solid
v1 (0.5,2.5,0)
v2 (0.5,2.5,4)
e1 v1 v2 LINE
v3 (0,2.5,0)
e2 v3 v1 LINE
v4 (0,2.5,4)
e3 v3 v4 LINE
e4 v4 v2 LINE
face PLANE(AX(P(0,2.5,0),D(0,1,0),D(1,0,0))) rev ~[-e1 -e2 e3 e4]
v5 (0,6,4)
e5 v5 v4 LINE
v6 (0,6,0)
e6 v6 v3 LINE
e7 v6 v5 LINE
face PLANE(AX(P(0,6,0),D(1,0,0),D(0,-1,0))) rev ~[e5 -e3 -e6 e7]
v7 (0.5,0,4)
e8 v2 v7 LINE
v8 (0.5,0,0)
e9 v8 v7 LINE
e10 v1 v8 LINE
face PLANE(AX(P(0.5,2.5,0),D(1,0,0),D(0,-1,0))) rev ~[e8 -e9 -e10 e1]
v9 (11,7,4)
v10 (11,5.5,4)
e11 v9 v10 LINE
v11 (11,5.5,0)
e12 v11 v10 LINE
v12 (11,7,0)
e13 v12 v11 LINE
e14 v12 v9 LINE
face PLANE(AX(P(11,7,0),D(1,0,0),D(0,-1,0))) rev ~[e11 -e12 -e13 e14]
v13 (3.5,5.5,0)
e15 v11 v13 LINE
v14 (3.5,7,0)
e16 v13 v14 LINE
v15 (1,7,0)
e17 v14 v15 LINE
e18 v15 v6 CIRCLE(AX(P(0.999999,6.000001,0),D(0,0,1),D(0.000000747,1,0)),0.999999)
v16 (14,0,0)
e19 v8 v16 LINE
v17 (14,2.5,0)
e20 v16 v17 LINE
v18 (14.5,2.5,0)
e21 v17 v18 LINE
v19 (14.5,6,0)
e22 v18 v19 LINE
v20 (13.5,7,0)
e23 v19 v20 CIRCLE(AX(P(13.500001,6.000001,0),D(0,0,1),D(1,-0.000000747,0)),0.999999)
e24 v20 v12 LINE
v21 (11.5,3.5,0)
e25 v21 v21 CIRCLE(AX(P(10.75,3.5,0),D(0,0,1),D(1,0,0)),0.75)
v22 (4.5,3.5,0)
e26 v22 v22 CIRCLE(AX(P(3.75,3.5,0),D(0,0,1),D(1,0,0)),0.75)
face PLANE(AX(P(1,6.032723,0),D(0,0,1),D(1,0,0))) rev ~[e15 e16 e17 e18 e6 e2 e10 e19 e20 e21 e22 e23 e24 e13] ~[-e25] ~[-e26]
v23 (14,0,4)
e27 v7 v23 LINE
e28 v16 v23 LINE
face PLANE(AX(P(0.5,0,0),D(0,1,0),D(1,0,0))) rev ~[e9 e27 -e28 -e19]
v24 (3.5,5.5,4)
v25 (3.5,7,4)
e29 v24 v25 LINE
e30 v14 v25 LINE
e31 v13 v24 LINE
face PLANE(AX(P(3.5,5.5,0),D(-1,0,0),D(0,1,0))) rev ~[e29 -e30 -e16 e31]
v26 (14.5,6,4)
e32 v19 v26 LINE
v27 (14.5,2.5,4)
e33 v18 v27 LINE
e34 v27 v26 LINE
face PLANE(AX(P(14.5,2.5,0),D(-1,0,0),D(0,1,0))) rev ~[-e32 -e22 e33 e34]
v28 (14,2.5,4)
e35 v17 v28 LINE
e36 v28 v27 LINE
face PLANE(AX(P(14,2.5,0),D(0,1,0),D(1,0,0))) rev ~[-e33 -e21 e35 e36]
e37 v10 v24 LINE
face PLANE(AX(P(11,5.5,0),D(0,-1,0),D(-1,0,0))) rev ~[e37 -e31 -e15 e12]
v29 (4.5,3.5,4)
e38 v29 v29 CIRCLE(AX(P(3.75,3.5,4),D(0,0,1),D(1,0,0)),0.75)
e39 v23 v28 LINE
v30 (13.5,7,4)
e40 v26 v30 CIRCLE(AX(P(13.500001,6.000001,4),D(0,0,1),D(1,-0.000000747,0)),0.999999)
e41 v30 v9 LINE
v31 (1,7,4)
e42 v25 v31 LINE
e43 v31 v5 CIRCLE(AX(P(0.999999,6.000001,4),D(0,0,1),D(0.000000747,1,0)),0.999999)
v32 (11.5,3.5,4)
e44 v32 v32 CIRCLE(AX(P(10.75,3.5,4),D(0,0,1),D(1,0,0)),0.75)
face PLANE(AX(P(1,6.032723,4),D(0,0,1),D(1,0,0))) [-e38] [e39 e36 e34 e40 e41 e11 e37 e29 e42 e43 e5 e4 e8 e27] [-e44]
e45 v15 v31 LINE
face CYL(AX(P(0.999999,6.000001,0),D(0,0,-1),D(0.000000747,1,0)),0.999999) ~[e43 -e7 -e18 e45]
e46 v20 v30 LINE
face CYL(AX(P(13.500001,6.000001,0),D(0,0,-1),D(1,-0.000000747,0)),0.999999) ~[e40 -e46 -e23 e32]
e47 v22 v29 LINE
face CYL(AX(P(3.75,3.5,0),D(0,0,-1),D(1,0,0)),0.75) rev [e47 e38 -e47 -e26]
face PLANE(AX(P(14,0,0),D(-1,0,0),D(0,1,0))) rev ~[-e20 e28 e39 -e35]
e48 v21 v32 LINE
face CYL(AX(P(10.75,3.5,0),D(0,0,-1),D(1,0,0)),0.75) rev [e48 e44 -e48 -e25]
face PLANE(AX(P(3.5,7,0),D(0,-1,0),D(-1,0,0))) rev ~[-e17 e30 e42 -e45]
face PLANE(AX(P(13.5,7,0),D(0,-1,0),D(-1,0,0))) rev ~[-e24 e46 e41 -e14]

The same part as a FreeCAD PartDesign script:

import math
import FreeCAD as App
import Part
import Sketcher

V = App.Vector

doc = App.newDocument("Part")
params = doc.addObject("Spreadsheet::Sheet", "Params")
for row, (alias, value) in enumerate([
    ("sketch1_radius", "0.999999 mm"),
    ("sketch1_diameter", "1.5 mm"),
    ("sketch1_width", "0.5 mm"),
    ("sketch1_width2", "13.5 mm"),
    ("sketch1_width3", "2.5 mm"),
    ("pad1_length", "4 mm"),
], start=1):
    params.set(f"A{row}", alias)
    params.set(f"B{row}", "=" + value)
    params.setAlias(f"B{row}", alias)

body = doc.addObject("PartDesign::Body", "Body")

sketch1 = body.newObject("Sketcher::SketchObject", "Sketch")
sketch1.AttachmentSupport = (doc.getObject("XY_Plane"), [""])
sketch1.MapMode = "FlatFace"
sketch1.addGeometry([
    Part.ArcOfCircle(Part.Circle(V(1, 6, 0), V(0, 0, 1), 1), math.radians(90), math.radians(180)),
    Part.LineSegment(V(0, 6, 0), V(0, 2.5, 0)),
    Part.LineSegment(V(0, 2.5, 0), V(0.5, 2.5, 0)),
    Part.LineSegment(V(0.5, 2.5, 0), V(0.5, 0, 0)),
    Part.LineSegment(V(0.5, 0, 0), V(14, 0, 0)),
    Part.LineSegment(V(14, 0, 0), V(14, 2.5, 0)),
    Part.LineSegment(V(14, 2.5, 0), V(14.5, 2.5, 0)),
    Part.LineSegment(V(14.5, 2.5, 0), V(14.5, 6, 0)),
    Part.ArcOfCircle(Part.Circle(V(13.5, 6, 0), V(0, 0, 1), 1), math.radians(0), math.radians(90)),
    Part.LineSegment(V(13.5, 7, 0), V(11, 7, 0)),
    Part.LineSegment(V(11, 7, 0), V(11, 5.5, 0)),
    Part.LineSegment(V(11, 5.5, 0), V(3.5, 5.5, 0)),
    Part.LineSegment(V(3.5, 5.5, 0), V(3.5, 7, 0)),
    Part.LineSegment(V(3.5, 7, 0), V(1, 7, 0)),
    Part.Circle(V(3.8, 3.5, 0), V(0, 0, 1), 0.8),
    Part.Circle(V(10.8, 3.5, 0), V(0, 0, 1), 0.8),
], False)
sketch1.addConstraint([
    Sketcher.Constraint("Tangent", 0, 2, 1, 1),
    Sketcher.Constraint("Coincident", 1, 2, 2, 1),
    Sketcher.Constraint("Coincident", 2, 2, 3, 1),
    Sketcher.Constraint("Coincident", 3, 2, 4, 1),
    Sketcher.Constraint("Coincident", 4, 2, 5, 1),
    Sketcher.Constraint("Coincident", 5, 2, 6, 1),
    Sketcher.Constraint("Coincident", 6, 2, 7, 1),
    Sketcher.Constraint("Tangent", 7, 2, 8, 1),
    Sketcher.Constraint("Tangent", 8, 2, 9, 1),
    Sketcher.Constraint("Coincident", 9, 2, 10, 1),
    Sketcher.Constraint("Coincident", 10, 2, 11, 1),
    Sketcher.Constraint("Coincident", 11, 2, 12, 1),
    Sketcher.Constraint("Coincident", 12, 2, 13, 1),
    Sketcher.Constraint("Tangent", 13, 2, 0, 1),
    Sketcher.Constraint("Vertical", 1),
    Sketcher.Constraint("Horizontal", 2),
    Sketcher.Constraint("Vertical", 3),
    Sketcher.Constraint("Horizontal", 4),
    Sketcher.Constraint("Vertical", 5),
    Sketcher.Constraint("Horizontal", 6),
    Sketcher.Constraint("Vertical", 7),
    Sketcher.Constraint("Horizontal", 9),
    Sketcher.Constraint("Vertical", 10),
    Sketcher.Constraint("Horizontal", 11),
    Sketcher.Constraint("Vertical", 12),
    Sketcher.Constraint("Horizontal", 13),
    Sketcher.Constraint("Equal", 0, 8),
    Sketcher.Constraint("Equal", 14, 15),
    Sketcher.Constraint("PointOnObject", 0, 2, -2),
    Sketcher.Constraint("PointOnObject", 3, 2, -1),
    Sketcher.Constraint("Horizontal", 0, 3, 8, 3),
    Sketcher.Constraint("Horizontal", 14, 3, 15, 3),
    Sketcher.Constraint("Horizontal", 2, 2, 5, 2),
    Sketcher.Constraint("Equal", 2, 6),
    Sketcher.Constraint("Equal", 9, 13),
    Sketcher.Constraint("Equal", 13, 3),
    Sketcher.Constraint("Radius", 0, 0.999999),
    Sketcher.Constraint("Diameter", 14, 1.5),
    Sketcher.Constraint("DistanceX", 2, 1, 2, 2, 0.5),
    Sketcher.Constraint("DistanceX", 4, 1, 4, 2, 13.5),
    Sketcher.Constraint("DistanceX", 9, 2, 9, 1, 2.5),
    Sketcher.Constraint("DistanceY", 1, 2, 1, 1, 3.5),
    Sketcher.Constraint("DistanceY", 10, 2, 10, 1, 1.5),
    Sketcher.Constraint("DistanceX", 14, 3, 15, 3, 7.0),
    Sketcher.Constraint("DistanceY", 1, 2, 14, 3, 1.0),
    Sketcher.Constraint("DistanceX", -1, 1, 14, 3, 3.75),
])
sketch1.setExpression("Constraints[36]", "Params.sketch1_radius")
sketch1.setExpression("Constraints[37]", "Params.sketch1_diameter")
sketch1.setExpression("Constraints[38]", "Params.sketch1_width")
sketch1.setExpression("Constraints[39]", "Params.sketch1_width2")
sketch1.setExpression("Constraints[40]", "Params.sketch1_width3")
pad1 = body.newObject("PartDesign::Pad", "Pad")
pad1.Profile = sketch1
pad1.setExpression("Length", "Params.pad1_length")

doc.recompute()
